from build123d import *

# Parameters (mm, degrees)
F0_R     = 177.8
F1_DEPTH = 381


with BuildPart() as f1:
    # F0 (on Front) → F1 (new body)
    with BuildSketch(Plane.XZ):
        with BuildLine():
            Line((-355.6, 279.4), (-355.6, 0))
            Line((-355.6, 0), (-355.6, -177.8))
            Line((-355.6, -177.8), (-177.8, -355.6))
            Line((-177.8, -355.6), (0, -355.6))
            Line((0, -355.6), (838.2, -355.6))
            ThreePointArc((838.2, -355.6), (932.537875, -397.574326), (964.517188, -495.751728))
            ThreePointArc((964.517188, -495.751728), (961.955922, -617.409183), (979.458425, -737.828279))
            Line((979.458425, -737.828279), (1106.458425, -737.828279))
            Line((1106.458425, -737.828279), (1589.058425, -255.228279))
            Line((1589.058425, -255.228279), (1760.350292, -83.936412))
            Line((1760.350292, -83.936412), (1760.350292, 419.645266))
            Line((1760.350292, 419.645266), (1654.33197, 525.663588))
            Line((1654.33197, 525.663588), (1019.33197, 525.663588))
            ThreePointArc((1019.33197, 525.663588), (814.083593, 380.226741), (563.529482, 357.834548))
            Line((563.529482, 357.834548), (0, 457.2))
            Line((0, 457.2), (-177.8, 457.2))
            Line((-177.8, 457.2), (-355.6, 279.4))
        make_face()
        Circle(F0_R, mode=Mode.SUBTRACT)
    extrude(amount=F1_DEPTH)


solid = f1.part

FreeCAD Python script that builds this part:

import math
import FreeCAD as App
import Part
import Sketcher
from FreeCAD import Vector
Q = App.Units.Quantity

doc = App.newDocument("Part")
body = doc.addObject("PartDesign::Body", "Body")

# Sketch on XZ plane
sketch1 = doc.addObject("Sketcher::SketchObject", "Sketch")
body.addObject(sketch1)
sketch1.AttachmentSupport = (doc.XZ_Plane, [""])
sketch1.MapMode = "FlatFace"
sketch1.addGeometry(Part.LineSegment(Vector(-355.6, 279.4, 0), Vector(-355.6, -177.8, 0)), False)
sketch1.addGeometry(Part.LineSegment(Vector(-355.6, -177.8, 0), Vector(-177.8, -355.6, 0)), False)
sketch1.addGeometry(Part.LineSegment(Vector(-177.8, -355.6, 0), Vector(838.2, -355.6, 0)), False)
sketch1.addGeometry(Part.ArcOfCircle(Part.Circle(Vector(838.199999, -482.6, 0), Vector(0, 0, 1), 127), math.radians(-5.94403), math.radians(90)), False)
sketch1.addGeometry(Part.ArcOfCircle(Part.Circle(Vector(1697.156911, -572.031751, 0), Vector(0, 0, 1), 736.600031), math.radians(174.05597), math.radians(193.00779)), False)
sketch1.addGeometry(Part.LineSegment(Vector(979.458425, -737.828279, 0), Vector(1106.458425, -737.828279, 0)), False)
sketch1.addGeometry(Part.LineSegment(Vector(1106.458425, -737.828279, 0), Vector(1760.350292, -83.936412, 0)), False)
sketch1.addGeometry(Part.LineSegment(Vector(1760.350292, -83.936412, 0), Vector(1760.350292, 419.645266, 0)), False)
sketch1.addGeometry(Part.LineSegment(Vector(1760.350292, 419.645266, 0), Vector(1654.33197, 525.663588, 0)), False)
sketch1.addGeometry(Part.LineSegment(Vector(1654.33197, 525.663588, 0), Vector(1019.33197, 525.663588, 0)), False)
sketch1.addGeometry(Part.ArcOfCircle(Part.Circle(Vector(647.332093, 833.102765, 0), Vector(0, 0, 1), 482.599996), math.radians(-100), math.radians(-39.572018)), False)
sketch1.addGeometry(Part.LineSegment(Vector(563.529482, 357.834548, 0), Vector(0, 457.2, 0)), False)
sketch1.addGeometry(Part.LineSegment(Vector(0, 457.2, 0), Vector(-177.8, 457.2, 0)), False)
sketch1.addGeometry(Part.LineSegment(Vector(-177.8, 457.2, 0), Vector(-355.6, 279.4, 0)), False)
sketch1.addGeometry(Part.Circle(Vector(0, 0, 0), Vector(0, 0, 1), 177.8), False)
sketch1.addConstraint(Sketcher.Constraint("Coincident", 0, 2, 1, 1))
sketch1.addConstraint(Sketcher.Constraint("Coincident", 1, 2, 2, 1))
sketch1.addConstraint(Sketcher.Constraint("Tangent", 2, 2, 3, 2))
sketch1.addConstraint(Sketcher.Constraint("Tangent", 3, 1, 4, 1))
sketch1.addConstraint(Sketcher.Constraint("Coincident", 4, 2, 5, 1))
sketch1.addConstraint(Sketcher.Constraint("Coincident", 5, 2, 6, 1))
sketch1.addConstraint(Sketcher.Constraint("Coincident", 6, 2, 7, 1))
sketch1.addConstraint(Sketcher.Constraint("Coincident", 7, 2, 8, 1))
sketch1.addConstraint(Sketcher.Constraint("Coincident", 8, 2, 9, 1))
sketch1.addConstraint(Sketcher.Constraint("Coincident", 9, 2, 10, 2))
sketch1.addConstraint(Sketcher.Constraint("Tangent", 10, 1, 11, 1))
sketch1.addConstraint(Sketcher.Constraint("Coincident", 11, 2, 12, 1))
sketch1.addConstraint(Sketcher.Constraint("Coincident", 12, 2, 13, 1))
sketch1.addConstraint(Sketcher.Constraint("Coincident", 13, 2, 0, 1))
sketch1.addConstraint(Sketcher.Constraint("Vertical", 0))
sketch1.addConstraint(Sketcher.Constraint("Horizontal", 2))
sketch1.addConstraint(Sketcher.Constraint("Horizontal", 5))
sketch1.addConstraint(Sketcher.Constraint("Vertical", 7))
sketch1.addConstraint(Sketcher.Constraint("Horizontal", 9))
sketch1.addConstraint(Sketcher.Constraint("Horizontal", 12))
sketch1.addConstraint(Sketcher.Constraint("Coincident", 14, 3, -1, 1))
sketch1.addConstraint(Sketcher.Constraint("PointOnObject", 11, 2, -2))
sketch1.addConstraint(Sketcher.Constraint("Perpendicular", 1, 6))
sketch1.addConstraint(Sketcher.Constraint("Perpendicular", 6, 8))
sketch1.addConstraint(Sketcher.Constraint("Perpendicular", 8, 13))
sketch1.addConstraint(Sketcher.Constraint("Vertical", 1, 2, 12, 2))
sketch1.addConstraint(Sketcher.Constraint("Equal", 1, 13))
sketch1.addConstraint(Sketcher.Constraint("Diameter", 14, Q("14 in")))
sketch1.addConstraint(Sketcher.Constraint("Radius", 3, Q("5 in")))
sketch1.addConstraint(Sketcher.Constraint("Radius", 10, Q("18.9999998 in")))
sketch1.addConstraint(Sketcher.Constraint("DistanceX", 2, 1, 2, 2, Q("40 in")))
sketch1.addConstraint(Sketcher.Constraint("DistanceX", 5, 1, 5, 2, Q("5 in")))
sketch1.addConstraint(Sketcher.Constraint("DistanceX", 9, 2, 9, 1, Q("25 in")))
sketch1.addConstraint(Sketcher.Constraint("DistanceX", 12, 2, 12, 1, Q("7 in")))
sketch1.addConstraint(Sketcher.Constraint("DistanceY", 0, 2, 0, 1, Q("18 in")))
sketch1.addConstraint(Sketcher.Constraint("DistanceY", 3, 3, -1, 1, Q("19 in")))
sketch1.addConstraint(Sketcher.Constraint("DistanceX", 0, 2, -1, 1, Q("14 in")))
sketch1.addConstraint(Sketcher.Constraint("Angle", 11, Q("170 deg")))
sketch1.addConstraint(Sketcher.Constraint("DistanceY", 6, 2, 8, 2, Q("24 in")))
sketch1.addConstraint(Sketcher.Constraint("Radius", 4, 736.600031))
sketch1.addConstraint(Sketcher.Constraint("DistanceY", 7, 1, 7, 2, 503.581678))
sketch1.addConstraint(Sketcher.Constraint("DistanceX", 10, 3, 7, 2, 1113.018199))
sketch1.addConstraint(Sketcher.Constraint("DistanceX", -1, 1, 4, 3, 1697.156911))
sketch1.addConstraint(Sketcher.Constraint("DistanceY", 5, 2, -1, 1, 737.828279))
pad1 = doc.addObject("PartDesign::Pad", "Pad")
body.addObject(pad1)
pad1.Profile = sketch1
pad1.Length = Q("15 in")

doc.recompute()
